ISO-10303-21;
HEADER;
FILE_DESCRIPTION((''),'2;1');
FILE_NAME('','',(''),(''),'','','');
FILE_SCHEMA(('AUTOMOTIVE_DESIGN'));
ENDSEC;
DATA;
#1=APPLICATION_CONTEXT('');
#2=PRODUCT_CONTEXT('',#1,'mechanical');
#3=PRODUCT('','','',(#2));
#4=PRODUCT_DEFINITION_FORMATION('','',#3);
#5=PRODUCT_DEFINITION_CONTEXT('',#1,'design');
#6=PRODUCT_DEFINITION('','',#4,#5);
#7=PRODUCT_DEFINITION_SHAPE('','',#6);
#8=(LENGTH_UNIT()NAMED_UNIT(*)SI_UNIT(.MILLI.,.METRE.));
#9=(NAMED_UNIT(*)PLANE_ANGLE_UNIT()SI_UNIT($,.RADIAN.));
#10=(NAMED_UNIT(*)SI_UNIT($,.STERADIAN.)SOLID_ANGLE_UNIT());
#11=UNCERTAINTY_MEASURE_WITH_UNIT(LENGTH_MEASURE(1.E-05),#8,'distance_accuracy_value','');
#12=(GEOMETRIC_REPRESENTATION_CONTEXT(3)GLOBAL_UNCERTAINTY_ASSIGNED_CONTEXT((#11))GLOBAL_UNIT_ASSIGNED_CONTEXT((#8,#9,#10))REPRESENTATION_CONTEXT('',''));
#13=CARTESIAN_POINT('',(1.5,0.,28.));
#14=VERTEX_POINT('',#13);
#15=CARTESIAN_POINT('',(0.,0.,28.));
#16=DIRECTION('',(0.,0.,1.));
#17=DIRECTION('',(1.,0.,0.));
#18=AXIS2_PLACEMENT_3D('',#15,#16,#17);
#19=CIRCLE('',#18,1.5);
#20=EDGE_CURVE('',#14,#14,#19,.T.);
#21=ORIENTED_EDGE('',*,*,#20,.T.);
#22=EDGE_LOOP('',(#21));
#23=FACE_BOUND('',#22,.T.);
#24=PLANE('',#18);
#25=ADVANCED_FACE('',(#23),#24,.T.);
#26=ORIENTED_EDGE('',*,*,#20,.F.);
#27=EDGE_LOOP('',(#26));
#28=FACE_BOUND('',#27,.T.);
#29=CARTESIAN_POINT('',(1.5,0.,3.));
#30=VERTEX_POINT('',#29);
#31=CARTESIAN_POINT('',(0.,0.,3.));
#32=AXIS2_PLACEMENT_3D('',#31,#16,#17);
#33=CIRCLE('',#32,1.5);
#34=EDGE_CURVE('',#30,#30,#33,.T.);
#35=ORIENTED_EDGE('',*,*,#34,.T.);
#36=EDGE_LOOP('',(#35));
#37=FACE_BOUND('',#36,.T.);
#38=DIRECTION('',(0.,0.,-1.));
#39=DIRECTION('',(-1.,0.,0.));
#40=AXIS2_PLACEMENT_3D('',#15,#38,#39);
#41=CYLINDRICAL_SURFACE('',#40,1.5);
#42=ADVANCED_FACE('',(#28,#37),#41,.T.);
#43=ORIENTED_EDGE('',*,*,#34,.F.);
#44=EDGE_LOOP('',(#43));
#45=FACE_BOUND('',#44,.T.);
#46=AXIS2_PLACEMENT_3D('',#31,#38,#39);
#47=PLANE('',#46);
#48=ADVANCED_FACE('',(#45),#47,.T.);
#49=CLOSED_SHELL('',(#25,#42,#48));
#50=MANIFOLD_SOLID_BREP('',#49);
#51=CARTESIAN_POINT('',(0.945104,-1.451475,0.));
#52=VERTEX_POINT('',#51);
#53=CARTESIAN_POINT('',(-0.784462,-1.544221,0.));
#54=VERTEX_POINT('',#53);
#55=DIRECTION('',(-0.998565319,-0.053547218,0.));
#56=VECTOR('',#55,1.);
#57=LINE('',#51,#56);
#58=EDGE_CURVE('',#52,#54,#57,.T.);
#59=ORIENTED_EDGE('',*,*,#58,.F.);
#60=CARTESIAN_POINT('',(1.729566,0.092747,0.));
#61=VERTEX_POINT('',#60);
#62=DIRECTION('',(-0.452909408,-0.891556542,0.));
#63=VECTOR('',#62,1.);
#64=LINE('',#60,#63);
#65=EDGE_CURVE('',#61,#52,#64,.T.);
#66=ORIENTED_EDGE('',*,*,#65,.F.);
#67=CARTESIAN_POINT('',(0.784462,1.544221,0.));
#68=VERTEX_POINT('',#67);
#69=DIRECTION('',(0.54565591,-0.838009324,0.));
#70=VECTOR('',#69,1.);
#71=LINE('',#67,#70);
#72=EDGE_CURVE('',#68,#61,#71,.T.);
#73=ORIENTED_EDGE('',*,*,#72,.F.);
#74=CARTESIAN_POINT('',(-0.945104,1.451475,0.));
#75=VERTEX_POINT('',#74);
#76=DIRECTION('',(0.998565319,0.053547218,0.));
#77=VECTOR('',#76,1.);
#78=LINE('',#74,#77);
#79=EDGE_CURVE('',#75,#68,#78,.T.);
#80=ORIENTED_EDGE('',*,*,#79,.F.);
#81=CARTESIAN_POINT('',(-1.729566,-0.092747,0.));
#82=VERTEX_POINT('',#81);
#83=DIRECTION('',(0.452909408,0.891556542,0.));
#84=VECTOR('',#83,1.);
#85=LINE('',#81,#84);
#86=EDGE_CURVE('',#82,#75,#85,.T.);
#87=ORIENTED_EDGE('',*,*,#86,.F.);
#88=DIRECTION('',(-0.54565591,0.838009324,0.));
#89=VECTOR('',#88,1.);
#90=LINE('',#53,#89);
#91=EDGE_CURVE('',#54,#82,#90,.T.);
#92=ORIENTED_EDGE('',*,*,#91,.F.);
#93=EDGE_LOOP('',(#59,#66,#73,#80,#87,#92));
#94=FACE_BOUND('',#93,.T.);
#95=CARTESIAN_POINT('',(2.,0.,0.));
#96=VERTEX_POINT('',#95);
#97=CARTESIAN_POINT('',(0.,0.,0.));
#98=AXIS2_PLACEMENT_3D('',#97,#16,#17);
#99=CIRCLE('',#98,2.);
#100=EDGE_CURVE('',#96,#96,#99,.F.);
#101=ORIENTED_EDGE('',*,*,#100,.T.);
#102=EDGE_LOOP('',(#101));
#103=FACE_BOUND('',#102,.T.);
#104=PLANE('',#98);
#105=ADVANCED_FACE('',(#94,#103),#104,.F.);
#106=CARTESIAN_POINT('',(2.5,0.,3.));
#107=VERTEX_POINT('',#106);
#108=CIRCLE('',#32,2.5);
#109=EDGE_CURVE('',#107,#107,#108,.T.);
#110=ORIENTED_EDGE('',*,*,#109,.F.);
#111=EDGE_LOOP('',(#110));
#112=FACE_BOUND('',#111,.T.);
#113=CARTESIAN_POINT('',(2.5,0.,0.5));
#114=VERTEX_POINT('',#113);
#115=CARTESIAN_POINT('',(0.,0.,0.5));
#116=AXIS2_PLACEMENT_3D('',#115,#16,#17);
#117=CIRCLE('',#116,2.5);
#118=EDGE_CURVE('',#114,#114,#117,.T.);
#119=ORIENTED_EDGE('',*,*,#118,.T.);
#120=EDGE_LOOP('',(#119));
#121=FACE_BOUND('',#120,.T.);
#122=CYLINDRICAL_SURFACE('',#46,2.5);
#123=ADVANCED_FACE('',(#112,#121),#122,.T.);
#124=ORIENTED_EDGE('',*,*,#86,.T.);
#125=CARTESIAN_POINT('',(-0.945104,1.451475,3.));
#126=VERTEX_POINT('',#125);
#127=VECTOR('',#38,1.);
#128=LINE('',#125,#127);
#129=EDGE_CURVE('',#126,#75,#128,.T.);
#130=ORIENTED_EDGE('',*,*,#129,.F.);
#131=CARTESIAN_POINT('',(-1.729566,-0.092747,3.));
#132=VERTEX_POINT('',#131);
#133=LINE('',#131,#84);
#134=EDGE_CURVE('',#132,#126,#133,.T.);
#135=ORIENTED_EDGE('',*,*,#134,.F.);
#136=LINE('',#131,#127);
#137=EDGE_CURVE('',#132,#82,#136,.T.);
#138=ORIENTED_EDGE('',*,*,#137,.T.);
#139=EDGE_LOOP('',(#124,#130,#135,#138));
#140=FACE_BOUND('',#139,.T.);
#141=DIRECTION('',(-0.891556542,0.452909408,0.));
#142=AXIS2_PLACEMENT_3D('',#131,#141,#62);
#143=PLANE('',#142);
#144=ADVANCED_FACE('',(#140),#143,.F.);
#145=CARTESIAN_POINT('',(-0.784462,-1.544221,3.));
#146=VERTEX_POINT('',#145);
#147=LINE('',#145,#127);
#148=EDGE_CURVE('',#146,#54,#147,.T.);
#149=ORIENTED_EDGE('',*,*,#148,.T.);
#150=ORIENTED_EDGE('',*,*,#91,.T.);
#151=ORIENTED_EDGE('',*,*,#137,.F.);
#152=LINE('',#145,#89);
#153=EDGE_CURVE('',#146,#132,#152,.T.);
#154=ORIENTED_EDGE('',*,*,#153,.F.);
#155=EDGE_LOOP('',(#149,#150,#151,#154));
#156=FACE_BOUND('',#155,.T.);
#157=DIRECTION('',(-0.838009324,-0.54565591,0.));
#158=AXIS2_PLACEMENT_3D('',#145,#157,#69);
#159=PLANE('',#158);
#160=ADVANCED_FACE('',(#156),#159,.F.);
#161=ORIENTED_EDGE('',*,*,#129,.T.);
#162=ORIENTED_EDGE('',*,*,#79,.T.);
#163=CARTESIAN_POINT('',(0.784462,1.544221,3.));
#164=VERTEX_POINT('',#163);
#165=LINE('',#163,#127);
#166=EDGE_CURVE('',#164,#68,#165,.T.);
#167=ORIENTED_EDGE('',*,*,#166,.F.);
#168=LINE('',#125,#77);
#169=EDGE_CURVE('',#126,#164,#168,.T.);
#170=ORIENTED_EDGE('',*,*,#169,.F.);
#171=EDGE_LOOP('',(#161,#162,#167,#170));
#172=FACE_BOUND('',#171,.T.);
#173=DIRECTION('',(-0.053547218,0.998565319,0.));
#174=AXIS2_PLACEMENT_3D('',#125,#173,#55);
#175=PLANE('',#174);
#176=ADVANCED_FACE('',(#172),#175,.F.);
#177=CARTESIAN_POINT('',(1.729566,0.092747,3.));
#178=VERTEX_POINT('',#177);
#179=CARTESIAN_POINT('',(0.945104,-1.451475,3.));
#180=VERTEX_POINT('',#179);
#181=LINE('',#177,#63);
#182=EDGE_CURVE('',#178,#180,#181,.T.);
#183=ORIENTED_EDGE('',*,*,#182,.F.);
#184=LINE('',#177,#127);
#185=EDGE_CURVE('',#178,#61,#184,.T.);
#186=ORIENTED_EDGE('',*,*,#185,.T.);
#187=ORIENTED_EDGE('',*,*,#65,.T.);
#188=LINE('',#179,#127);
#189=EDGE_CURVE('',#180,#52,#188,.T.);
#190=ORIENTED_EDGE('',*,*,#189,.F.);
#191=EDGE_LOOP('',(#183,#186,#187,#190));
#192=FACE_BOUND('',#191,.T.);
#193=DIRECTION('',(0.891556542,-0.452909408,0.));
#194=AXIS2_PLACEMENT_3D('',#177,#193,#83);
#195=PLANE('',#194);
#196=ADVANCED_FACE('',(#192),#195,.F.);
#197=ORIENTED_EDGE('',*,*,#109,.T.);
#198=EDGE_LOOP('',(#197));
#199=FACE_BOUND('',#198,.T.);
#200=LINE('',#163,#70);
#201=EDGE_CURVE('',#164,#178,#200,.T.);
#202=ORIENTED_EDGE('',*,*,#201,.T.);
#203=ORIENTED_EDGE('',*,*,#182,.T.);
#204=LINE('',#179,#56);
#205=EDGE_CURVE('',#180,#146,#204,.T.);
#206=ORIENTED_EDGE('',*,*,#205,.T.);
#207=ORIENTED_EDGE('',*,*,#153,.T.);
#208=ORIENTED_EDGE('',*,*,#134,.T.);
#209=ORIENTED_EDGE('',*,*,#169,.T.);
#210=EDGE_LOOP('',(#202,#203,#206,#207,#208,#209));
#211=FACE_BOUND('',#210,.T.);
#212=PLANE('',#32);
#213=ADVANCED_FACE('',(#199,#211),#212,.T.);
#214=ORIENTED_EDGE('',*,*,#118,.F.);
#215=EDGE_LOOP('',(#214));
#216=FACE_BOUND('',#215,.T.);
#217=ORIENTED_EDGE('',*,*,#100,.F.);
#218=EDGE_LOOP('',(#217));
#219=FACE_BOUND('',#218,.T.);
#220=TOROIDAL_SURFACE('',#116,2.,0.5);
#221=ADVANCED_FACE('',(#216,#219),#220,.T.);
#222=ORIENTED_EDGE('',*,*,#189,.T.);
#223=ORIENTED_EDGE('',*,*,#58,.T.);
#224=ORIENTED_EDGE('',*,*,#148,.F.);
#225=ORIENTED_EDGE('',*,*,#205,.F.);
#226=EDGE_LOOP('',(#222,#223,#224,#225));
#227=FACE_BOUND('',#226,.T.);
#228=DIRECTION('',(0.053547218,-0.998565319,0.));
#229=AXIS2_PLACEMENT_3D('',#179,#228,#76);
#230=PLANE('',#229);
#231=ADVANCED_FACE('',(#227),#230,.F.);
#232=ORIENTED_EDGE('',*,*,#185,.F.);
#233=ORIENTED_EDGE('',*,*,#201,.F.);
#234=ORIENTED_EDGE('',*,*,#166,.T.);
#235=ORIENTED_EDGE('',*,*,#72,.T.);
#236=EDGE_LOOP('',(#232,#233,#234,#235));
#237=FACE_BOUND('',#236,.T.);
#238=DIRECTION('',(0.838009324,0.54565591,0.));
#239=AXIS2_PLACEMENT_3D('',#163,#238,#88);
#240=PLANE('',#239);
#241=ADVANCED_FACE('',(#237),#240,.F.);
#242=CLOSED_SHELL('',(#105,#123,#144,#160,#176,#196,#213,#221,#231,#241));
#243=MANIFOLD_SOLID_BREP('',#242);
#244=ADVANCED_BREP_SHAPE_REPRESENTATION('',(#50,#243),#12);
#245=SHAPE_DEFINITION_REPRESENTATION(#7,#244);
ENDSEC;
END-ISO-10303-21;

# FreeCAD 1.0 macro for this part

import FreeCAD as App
import Part
import Sketcher

V = App.Vector


def edges_at(feature, points):
    """Names of the edges that pass closest to the given points."""
    edges = feature.Shape.Edges
    near = lambda p: min(range(len(edges)), key=lambda i: edges[i].distToShape(Part.Vertex(*p))[0])
    return sorted({f"Edge{near(p) + 1}" for p in points})

doc = App.newDocument("Part")
body = doc.addObject("PartDesign::Body", "Body")
body.AllowCompound = True

sketch1 = body.newObject("Sketcher::SketchObject", "Sketch")
sketch1.AttachmentSupport = (doc.getObject("XY_Plane"), [""])
sketch1.MapMode = "FlatFace"
sketch1.addGeometry(Part.Circle(V(0, 0, 0), V(0, 0, 1), 2.5), False)
sketch1.addConstraint(Sketcher.Constraint("Coincident", 0, 3, -1, 1))
sketch1.addConstraint(Sketcher.Constraint("Diameter", 0, 5.0))
pad1 = body.newObject("PartDesign::Pad", "Pad")
pad1.Profile = sketch1
pad1.Length = 3

sketch2 = body.newObject("Sketcher::SketchObject", "Sketch001")
sketch2.AttachmentSupport = (doc.getObject("XY_Plane"), [""])
sketch2.MapMode = "FlatFace"
sketch2.AttachmentOffset = App.Placement(V(0, 0, 3), App.Rotation())
sketch2.addGeometry(Part.Circle(V(0, 0, 0), V(0, 0, 1), 1.5), False)
sketch2.addConstraint(Sketcher.Constraint("Coincident", 0, 3, -1, 1))
sketch2.addConstraint(Sketcher.Constraint("Diameter", 0, 3.0))
pad2 = body.newObject("PartDesign::Pad", "Pad001")
pad2.Profile = sketch2
pad2.Length = 25

sketch3 = body.newObject("Sketcher::SketchObject", "Sketch002")
sketch3.AttachmentSupport = (doc.getObject("XY_Plane"), [""])
sketch3.MapMode = "FlatFace"
sketch3.addGeometry(Part.LineSegment(V(-0.8, -1.5, 0), V(-1.7, -0.1, 0)), False)
sketch3.addGeometry(Part.LineSegment(V(-1.7, -0.1, 0), V(-0.9, 1.5, 0)), False)
sketch3.addGeometry(Part.LineSegment(V(-0.9, 1.5, 0), V(0.8, 1.5, 0)), False)
sketch3.addGeometry(Part.LineSegment(V(0.8, 1.5, 0), V(1.7, 0.1, 0)), False)
sketch3.addGeometry(Part.LineSegment(V(1.7, 0.1, 0), V(0.9, -1.5, 0)), False)
sketch3.addGeometry(Part.LineSegment(V(0.9, -1.5, 0), V(-0.8, -1.5, 0)), False)
sketch3.addConstraint(Sketcher.Constraint("Coincident", 0, 2, 1, 1))
sketch3.addConstraint(Sketcher.Constraint("Coincident", 1, 2, 2, 1))
sketch3.addConstraint(Sketcher.Constraint("Coincident", 2, 2, 3, 1))
sketch3.addConstraint(Sketcher.Constraint("Coincident", 3, 2, 4, 1))
sketch3.addConstraint(Sketcher.Constraint("Coincident", 4, 2, 5, 1))
sketch3.addConstraint(Sketcher.Constraint("Coincident", 5, 2, 0, 1))
sketch3.addConstraint(Sketcher.Constraint("Symmetric", 0, 2, 3, 2, -1, 1))
sketch3.addConstraint(Sketcher.Constraint("Symmetric", 1, 2, 4, 2, -1, 1))
sketch3.addConstraint(Sketcher.Constraint("Symmetric", 2, 2, 5, 2, -1, 1))
sketch3.addConstraint(Sketcher.Constraint("Equal", 0, 1))
sketch3.addConstraint(Sketcher.Constraint("Equal", 1, 2))
sketch3.addConstraint(Sketcher.Constraint("Distance", 0, 1.732051))
sketch3.addConstraint(Sketcher.Constraint("DistanceY", -1, 1, 2, 2, 1.544221))
sketch3.addConstraint(Sketcher.Constraint("DistanceY", 0, 2, 1, 2, 1.544221))
sketch3.addConstraint(Sketcher.Constraint("DistanceX", 1, 2, 3, 2, 2.67467))
pocket1 = body.newObject("PartDesign::Pocket", "Pocket")
pocket1.Profile = sketch3
pocket1.Length = 3
pocket1.Reversed = True
doc.recompute()

fillet = body.newObject("PartDesign::Fillet", "Fillet")
fillet.Base = (pocket1, edges_at(pocket1, [(-2.5, 0, 0)]))
fillet.Radius = 0.5

doc.recompute()
